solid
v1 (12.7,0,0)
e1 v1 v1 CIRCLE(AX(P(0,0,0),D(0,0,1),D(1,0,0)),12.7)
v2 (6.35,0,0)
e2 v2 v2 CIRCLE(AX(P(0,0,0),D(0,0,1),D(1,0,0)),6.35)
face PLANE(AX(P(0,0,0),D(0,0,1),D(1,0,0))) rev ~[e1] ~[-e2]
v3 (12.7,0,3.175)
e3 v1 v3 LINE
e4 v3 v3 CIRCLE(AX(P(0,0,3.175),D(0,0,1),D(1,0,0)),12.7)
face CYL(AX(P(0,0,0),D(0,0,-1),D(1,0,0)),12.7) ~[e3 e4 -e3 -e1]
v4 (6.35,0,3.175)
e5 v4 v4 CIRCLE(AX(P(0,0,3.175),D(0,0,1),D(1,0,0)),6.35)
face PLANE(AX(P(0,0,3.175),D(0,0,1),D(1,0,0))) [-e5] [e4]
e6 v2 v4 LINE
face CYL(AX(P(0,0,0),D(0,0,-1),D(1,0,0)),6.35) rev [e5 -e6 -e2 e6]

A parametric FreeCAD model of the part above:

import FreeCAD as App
import Part
import Sketcher
Q = App.Units.Quantity

doc = App.newDocument("Part")
body = doc.addObject("PartDesign::Body", "Body")

# Sketch on XY plane
sketch1 = body.newObject("Sketcher::SketchObject", "Sketch")
sketch1.AttachmentSupport = (doc.getObject("XY_Plane"), [""])
sketch1.MapMode = "FlatFace"
sketch1.addGeometry(Part.Circle(App.Vector(0, 0, 0), App.Vector(0, 0, 1), 13), False)
sketch1.addGeometry(Part.Circle(App.Vector(0, 0, 0), App.Vector(0, 0, 1), 6), False)
sketch1.addConstraint(Sketcher.Constraint("Coincident", 0, 3, -1, 1))
sketch1.addConstraint(Sketcher.Constraint("Coincident", 1, 3, -1, 1))
sketch1.addConstraint(Sketcher.Constraint("Diameter", 0, Q("1 in")))
sketch1.addConstraint(Sketcher.Constraint("Diameter", 1, Q("0.5 in")))
pad1 = body.newObject("PartDesign::Pad", "Pad")
pad1.Profile = sketch1
pad1.Length = Q("0.125 in")

doc.recompute()
